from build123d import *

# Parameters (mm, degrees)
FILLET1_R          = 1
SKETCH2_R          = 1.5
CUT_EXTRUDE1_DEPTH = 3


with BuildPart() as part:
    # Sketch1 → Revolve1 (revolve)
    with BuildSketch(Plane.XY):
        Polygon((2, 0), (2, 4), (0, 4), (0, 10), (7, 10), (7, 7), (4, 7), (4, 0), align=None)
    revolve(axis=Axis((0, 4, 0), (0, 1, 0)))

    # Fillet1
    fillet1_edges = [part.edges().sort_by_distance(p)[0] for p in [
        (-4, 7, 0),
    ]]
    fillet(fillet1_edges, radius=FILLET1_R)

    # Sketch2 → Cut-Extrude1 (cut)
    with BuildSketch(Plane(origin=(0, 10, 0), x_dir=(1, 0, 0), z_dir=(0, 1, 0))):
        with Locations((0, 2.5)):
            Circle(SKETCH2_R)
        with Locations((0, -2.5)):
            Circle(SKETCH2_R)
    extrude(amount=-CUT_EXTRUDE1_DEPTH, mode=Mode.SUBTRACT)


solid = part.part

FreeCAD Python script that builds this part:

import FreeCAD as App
import Part
import Sketcher
from FreeCAD import Vector


def edges_at(feature, points):
    """Names of the edges that pass closest to the given points."""
    edges = feature.Shape.Edges
    near = lambda p: min(range(len(edges)), key=lambda i: edges[i].distToShape(Part.Vertex(*p))[0])
    return sorted({f"Edge{near(p) + 1}" for p in points})


def add_polygon(sketch, points):
    """Adds a closed chain of lines whose ends are joined by coincident constraints."""
    first, n = sketch.GeometryCount, len(points)
    for a, b in zip(points, points[1:] + points[:1]):
        sketch.addGeometry(Part.LineSegment(App.Vector(*a, 0), App.Vector(*b, 0)), False)
    for i in range(n):
        sketch.addConstraint(Sketcher.Constraint("Coincident", first + i, 2, first + (i + 1) % n, 1))

doc = App.newDocument("Part")
body = doc.addObject("PartDesign::Body", "Body")

sketch1 = doc.addObject("Sketcher::SketchObject", "Sketch")
body.addObject(sketch1)
sketch1.AttachmentSupport = (doc.XY_Plane, [""])
sketch1.MapMode = "FlatFace"
add_polygon(sketch1, [(2, 4), (2, 0), (4, 0), (4, 7), (7, 7), (7, 10), (0, 10), (0, 4)])
sketch1.addConstraint(Sketcher.Constraint("Vertical", 0))
sketch1.addConstraint(Sketcher.Constraint("Horizontal", 1))
sketch1.addConstraint(Sketcher.Constraint("Vertical", 2))
sketch1.addConstraint(Sketcher.Constraint("Horizontal", 3))
sketch1.addConstraint(Sketcher.Constraint("Vertical", 4))
sketch1.addConstraint(Sketcher.Constraint("Horizontal", 5))
sketch1.addConstraint(Sketcher.Constraint("Vertical", 6))
sketch1.addConstraint(Sketcher.Constraint("Horizontal", 7))
sketch1.addConstraint(Sketcher.Constraint("PointOnObject", 0, 2, -1))
sketch1.addConstraint(Sketcher.Constraint("PointOnObject", 5, 2, -2))
sketch1.addConstraint(Sketcher.Constraint("Equal", 1, 7))
sketch1.addConstraint(Sketcher.Constraint("Equal", 5, 2))
sketch1.addConstraint(Sketcher.Constraint("Equal", 3, 4))
sketch1.addConstraint(Sketcher.Constraint("DistanceX", 1, 1, 1, 2, 2.0))
sketch1.addConstraint(Sketcher.Constraint("DistanceX", 3, 1, 3, 2, 3.0))
sketch1.addConstraint(Sketcher.Constraint("DistanceY", 0, 2, 0, 1, 4.0))
revolution = doc.addObject("PartDesign::Revolution", "Revolution")
body.addObject(revolution)
revolution.Profile = sketch1
revolution.ReferenceAxis = (sketch1, ["V_Axis"])
revolution.Angle = 360
doc.recompute()

fillet = doc.addObject("PartDesign::Fillet", "Fillet")
body.addObject(fillet)
fillet.Base = (revolution, edges_at(revolution, [(-4, 7, 0)]))
fillet.Radius = 1

sketch2 = doc.addObject("Sketcher::SketchObject", "Sketch001")
body.addObject(sketch2)
sketch2.AttachmentSupport = (doc.XZ_Plane, [""])
sketch2.MapMode = "FlatFace"
sketch2.AttachmentOffset = App.Placement(Vector(0, 0, -10), App.Rotation())
sketch2.addGeometry(Part.Circle(Vector(0, -2.5, 0), Vector(0, 0, 1), 1.5), False)
sketch2.addGeometry(Part.Circle(Vector(0, 2.5, 0), Vector(0, 0, 1), 1.5), False)
sketch2.addConstraint(Sketcher.Constraint("Equal", 0, 1))
sketch2.addConstraint(Sketcher.Constraint("Symmetric", 0, 3, 1, 3, -1, 1))
sketch2.addConstraint(Sketcher.Constraint("PointOnObject", 0, 3, -2))
sketch2.addConstraint(Sketcher.Constraint("Diameter", 0, 3.0))
sketch2.addConstraint(Sketcher.Constraint("DistanceY", 0, 3, 1, 3, 5.0))
pocket1 = doc.addObject("PartDesign::Pocket", "Pocket")
body.addObject(pocket1)
pocket1.Profile = sketch2
pocket1.Length = 3
pocket1.Reversed = True

doc.recompute()
